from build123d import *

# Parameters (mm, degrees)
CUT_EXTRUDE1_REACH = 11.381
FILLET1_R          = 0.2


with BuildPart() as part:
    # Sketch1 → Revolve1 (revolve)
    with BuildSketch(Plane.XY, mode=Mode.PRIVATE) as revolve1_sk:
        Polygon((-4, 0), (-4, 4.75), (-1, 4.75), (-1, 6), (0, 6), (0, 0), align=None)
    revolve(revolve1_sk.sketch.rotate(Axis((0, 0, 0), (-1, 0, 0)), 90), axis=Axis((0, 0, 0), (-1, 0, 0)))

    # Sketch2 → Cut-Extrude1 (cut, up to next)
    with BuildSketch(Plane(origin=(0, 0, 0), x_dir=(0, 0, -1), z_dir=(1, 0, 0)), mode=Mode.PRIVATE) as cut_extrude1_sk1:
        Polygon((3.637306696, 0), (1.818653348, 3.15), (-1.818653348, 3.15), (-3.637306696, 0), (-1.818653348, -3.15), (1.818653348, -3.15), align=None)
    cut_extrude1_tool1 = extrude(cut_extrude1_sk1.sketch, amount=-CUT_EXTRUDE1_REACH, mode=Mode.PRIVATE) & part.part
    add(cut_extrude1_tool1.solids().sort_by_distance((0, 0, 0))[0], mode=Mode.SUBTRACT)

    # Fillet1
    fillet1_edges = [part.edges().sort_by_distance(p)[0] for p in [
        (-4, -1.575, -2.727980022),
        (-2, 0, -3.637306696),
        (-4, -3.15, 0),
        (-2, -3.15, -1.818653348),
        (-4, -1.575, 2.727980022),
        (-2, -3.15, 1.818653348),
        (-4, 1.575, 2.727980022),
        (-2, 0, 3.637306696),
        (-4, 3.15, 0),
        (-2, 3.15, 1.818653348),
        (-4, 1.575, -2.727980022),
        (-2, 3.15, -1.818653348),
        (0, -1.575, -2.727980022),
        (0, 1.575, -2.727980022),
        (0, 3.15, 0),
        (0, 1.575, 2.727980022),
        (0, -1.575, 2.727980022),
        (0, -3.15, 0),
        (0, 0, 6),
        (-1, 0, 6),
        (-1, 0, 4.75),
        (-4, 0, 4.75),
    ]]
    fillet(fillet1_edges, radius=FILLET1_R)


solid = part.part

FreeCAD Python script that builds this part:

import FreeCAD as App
import Part
import Sketcher

V = App.Vector
Q = App.Units.Quantity


def add_polygon(sketch, points):
    """Adds a closed chain of lines whose ends are joined by coincident constraints."""
    first, n = sketch.GeometryCount, len(points)
    for a, b in zip(points, points[1:] + points[:1]):
        sketch.addGeometry(Part.LineSegment(App.Vector(*a, 0), App.Vector(*b, 0)), False)
    for i in range(n):
        sketch.addConstraint(Sketcher.Constraint("Coincident", first + i, 2, first + (i + 1) % n, 1))

doc = App.newDocument("Part")
params = doc.addObject("Spreadsheet::Sheet", "Params")
for row, (alias, value) in enumerate([
    ("sketch1_width", "4 mm"),
    ("sketch1_width2", "1 mm"),
    ("sketch1_height", "6 mm"),
    ("sketch1_height2", "4.75 mm"),
    ("revolution_angle", "360 deg"),
    ("fillet_radius", "0.2 mm"),
], start=1):
    params.set(f"A{row}", alias)
    params.set(f"B{row}", "=" + value)
    params.setAlias(f"B{row}", alias)

body = doc.addObject("PartDesign::Body", "Body")

sketch1 = body.newObject("Sketcher::SketchObject", "Sketch")
sketch1.AttachmentSupport = (doc.getObject("XY_Plane"), [""])
sketch1.MapMode = "FlatFace"
add_polygon(sketch1, [(-4, 4.8), (-4, 0), (0, 0), (0, 6), (-1, 6), (-1, 4.8)])
sketch1.addConstraint(Sketcher.Constraint("Vertical", 0))
sketch1.addConstraint(Sketcher.Constraint("Horizontal", 1))
sketch1.addConstraint(Sketcher.Constraint("Vertical", 2))
sketch1.addConstraint(Sketcher.Constraint("Horizontal", 3))
sketch1.addConstraint(Sketcher.Constraint("Vertical", 4))
sketch1.addConstraint(Sketcher.Constraint("Horizontal", 5))
sketch1.addConstraint(Sketcher.Constraint("Coincident", 1, 2, -1, 1))
sketch1.addConstraint(Sketcher.Constraint("DistanceX", 1, 1, 1, 2, Q("4 mm")))
sketch1.addConstraint(Sketcher.Constraint("DistanceX", 3, 2, 3, 1, Q("1 mm")))
sketch1.addConstraint(Sketcher.Constraint("DistanceY", 2, 1, 2, 2, Q("6 mm")))
sketch1.addConstraint(Sketcher.Constraint("DistanceY", 0, 2, 0, 1, Q("4.75 mm")))
sketch1.setExpression("Constraints[13]", "Params.sketch1_width")
sketch1.setExpression("Constraints[14]", "Params.sketch1_width2")
sketch1.setExpression("Constraints[15]", "Params.sketch1_height")
sketch1.setExpression("Constraints[16]", "Params.sketch1_height2")
revolution = body.newObject("PartDesign::Revolution", "Revolution")
revolution.Profile = sketch1
revolution.ReferenceAxis = (sketch1, ["H_Axis"])
revolution.setExpression("Angle", "Params.revolution_angle")

sketch2 = body.newObject("Sketcher::SketchObject", "Sketch001")
sketch2.AttachmentSupport = (doc.getObject("YZ_Plane"), [""])
sketch2.MapMode = "FlatFace"
add_polygon(sketch2, [(0, -3.6), (3.1, -1.8), (3.1, 1.8), (0, 3.6), (-3.1, 1.8), (-3.1, -1.8)])
sketch2.addConstraint(Sketcher.Constraint("Vertical", 1))
sketch2.addConstraint(Sketcher.Constraint("Vertical", 4))
sketch2.addConstraint(Sketcher.Constraint("Symmetric", 0, 2, 3, 2, -1, 1))
sketch2.addConstraint(Sketcher.Constraint("Symmetric", 2, 2, 5, 2, -1, 1))
sketch2.addConstraint(Sketcher.Constraint("PointOnObject", 2, 2, -2))
sketch2.addConstraint(Sketcher.Constraint("Parallel", 2, 5))
sketch2.addConstraint(Sketcher.Constraint("Horizontal", 1, 2, 3, 2))
sketch2.addConstraint(Sketcher.Constraint("Angle", 0, Q("30 deg")))
sketch2.addConstraint(Sketcher.Constraint("DistanceX", 3, 2, 1, 2, Q("6.3 mm")))
sketch2.addConstraint(Sketcher.Constraint("DistanceY", 1, 1, 1, 2, Q("3.637307 mm")))
pocket1 = body.newObject("PartDesign::Pocket", "Pocket")
pocket1.Profile = sketch2
pocket1.Type = "UpToFirst"
doc.recompute()

fillet = body.newObject("PartDesign::Fillet", "Fillet")
fillet.Base = (pocket1, ["Edge1"])
fillet.UseAllEdges = True
fillet.setExpression("Radius", "Params.fillet_radius")

doc.recompute()
